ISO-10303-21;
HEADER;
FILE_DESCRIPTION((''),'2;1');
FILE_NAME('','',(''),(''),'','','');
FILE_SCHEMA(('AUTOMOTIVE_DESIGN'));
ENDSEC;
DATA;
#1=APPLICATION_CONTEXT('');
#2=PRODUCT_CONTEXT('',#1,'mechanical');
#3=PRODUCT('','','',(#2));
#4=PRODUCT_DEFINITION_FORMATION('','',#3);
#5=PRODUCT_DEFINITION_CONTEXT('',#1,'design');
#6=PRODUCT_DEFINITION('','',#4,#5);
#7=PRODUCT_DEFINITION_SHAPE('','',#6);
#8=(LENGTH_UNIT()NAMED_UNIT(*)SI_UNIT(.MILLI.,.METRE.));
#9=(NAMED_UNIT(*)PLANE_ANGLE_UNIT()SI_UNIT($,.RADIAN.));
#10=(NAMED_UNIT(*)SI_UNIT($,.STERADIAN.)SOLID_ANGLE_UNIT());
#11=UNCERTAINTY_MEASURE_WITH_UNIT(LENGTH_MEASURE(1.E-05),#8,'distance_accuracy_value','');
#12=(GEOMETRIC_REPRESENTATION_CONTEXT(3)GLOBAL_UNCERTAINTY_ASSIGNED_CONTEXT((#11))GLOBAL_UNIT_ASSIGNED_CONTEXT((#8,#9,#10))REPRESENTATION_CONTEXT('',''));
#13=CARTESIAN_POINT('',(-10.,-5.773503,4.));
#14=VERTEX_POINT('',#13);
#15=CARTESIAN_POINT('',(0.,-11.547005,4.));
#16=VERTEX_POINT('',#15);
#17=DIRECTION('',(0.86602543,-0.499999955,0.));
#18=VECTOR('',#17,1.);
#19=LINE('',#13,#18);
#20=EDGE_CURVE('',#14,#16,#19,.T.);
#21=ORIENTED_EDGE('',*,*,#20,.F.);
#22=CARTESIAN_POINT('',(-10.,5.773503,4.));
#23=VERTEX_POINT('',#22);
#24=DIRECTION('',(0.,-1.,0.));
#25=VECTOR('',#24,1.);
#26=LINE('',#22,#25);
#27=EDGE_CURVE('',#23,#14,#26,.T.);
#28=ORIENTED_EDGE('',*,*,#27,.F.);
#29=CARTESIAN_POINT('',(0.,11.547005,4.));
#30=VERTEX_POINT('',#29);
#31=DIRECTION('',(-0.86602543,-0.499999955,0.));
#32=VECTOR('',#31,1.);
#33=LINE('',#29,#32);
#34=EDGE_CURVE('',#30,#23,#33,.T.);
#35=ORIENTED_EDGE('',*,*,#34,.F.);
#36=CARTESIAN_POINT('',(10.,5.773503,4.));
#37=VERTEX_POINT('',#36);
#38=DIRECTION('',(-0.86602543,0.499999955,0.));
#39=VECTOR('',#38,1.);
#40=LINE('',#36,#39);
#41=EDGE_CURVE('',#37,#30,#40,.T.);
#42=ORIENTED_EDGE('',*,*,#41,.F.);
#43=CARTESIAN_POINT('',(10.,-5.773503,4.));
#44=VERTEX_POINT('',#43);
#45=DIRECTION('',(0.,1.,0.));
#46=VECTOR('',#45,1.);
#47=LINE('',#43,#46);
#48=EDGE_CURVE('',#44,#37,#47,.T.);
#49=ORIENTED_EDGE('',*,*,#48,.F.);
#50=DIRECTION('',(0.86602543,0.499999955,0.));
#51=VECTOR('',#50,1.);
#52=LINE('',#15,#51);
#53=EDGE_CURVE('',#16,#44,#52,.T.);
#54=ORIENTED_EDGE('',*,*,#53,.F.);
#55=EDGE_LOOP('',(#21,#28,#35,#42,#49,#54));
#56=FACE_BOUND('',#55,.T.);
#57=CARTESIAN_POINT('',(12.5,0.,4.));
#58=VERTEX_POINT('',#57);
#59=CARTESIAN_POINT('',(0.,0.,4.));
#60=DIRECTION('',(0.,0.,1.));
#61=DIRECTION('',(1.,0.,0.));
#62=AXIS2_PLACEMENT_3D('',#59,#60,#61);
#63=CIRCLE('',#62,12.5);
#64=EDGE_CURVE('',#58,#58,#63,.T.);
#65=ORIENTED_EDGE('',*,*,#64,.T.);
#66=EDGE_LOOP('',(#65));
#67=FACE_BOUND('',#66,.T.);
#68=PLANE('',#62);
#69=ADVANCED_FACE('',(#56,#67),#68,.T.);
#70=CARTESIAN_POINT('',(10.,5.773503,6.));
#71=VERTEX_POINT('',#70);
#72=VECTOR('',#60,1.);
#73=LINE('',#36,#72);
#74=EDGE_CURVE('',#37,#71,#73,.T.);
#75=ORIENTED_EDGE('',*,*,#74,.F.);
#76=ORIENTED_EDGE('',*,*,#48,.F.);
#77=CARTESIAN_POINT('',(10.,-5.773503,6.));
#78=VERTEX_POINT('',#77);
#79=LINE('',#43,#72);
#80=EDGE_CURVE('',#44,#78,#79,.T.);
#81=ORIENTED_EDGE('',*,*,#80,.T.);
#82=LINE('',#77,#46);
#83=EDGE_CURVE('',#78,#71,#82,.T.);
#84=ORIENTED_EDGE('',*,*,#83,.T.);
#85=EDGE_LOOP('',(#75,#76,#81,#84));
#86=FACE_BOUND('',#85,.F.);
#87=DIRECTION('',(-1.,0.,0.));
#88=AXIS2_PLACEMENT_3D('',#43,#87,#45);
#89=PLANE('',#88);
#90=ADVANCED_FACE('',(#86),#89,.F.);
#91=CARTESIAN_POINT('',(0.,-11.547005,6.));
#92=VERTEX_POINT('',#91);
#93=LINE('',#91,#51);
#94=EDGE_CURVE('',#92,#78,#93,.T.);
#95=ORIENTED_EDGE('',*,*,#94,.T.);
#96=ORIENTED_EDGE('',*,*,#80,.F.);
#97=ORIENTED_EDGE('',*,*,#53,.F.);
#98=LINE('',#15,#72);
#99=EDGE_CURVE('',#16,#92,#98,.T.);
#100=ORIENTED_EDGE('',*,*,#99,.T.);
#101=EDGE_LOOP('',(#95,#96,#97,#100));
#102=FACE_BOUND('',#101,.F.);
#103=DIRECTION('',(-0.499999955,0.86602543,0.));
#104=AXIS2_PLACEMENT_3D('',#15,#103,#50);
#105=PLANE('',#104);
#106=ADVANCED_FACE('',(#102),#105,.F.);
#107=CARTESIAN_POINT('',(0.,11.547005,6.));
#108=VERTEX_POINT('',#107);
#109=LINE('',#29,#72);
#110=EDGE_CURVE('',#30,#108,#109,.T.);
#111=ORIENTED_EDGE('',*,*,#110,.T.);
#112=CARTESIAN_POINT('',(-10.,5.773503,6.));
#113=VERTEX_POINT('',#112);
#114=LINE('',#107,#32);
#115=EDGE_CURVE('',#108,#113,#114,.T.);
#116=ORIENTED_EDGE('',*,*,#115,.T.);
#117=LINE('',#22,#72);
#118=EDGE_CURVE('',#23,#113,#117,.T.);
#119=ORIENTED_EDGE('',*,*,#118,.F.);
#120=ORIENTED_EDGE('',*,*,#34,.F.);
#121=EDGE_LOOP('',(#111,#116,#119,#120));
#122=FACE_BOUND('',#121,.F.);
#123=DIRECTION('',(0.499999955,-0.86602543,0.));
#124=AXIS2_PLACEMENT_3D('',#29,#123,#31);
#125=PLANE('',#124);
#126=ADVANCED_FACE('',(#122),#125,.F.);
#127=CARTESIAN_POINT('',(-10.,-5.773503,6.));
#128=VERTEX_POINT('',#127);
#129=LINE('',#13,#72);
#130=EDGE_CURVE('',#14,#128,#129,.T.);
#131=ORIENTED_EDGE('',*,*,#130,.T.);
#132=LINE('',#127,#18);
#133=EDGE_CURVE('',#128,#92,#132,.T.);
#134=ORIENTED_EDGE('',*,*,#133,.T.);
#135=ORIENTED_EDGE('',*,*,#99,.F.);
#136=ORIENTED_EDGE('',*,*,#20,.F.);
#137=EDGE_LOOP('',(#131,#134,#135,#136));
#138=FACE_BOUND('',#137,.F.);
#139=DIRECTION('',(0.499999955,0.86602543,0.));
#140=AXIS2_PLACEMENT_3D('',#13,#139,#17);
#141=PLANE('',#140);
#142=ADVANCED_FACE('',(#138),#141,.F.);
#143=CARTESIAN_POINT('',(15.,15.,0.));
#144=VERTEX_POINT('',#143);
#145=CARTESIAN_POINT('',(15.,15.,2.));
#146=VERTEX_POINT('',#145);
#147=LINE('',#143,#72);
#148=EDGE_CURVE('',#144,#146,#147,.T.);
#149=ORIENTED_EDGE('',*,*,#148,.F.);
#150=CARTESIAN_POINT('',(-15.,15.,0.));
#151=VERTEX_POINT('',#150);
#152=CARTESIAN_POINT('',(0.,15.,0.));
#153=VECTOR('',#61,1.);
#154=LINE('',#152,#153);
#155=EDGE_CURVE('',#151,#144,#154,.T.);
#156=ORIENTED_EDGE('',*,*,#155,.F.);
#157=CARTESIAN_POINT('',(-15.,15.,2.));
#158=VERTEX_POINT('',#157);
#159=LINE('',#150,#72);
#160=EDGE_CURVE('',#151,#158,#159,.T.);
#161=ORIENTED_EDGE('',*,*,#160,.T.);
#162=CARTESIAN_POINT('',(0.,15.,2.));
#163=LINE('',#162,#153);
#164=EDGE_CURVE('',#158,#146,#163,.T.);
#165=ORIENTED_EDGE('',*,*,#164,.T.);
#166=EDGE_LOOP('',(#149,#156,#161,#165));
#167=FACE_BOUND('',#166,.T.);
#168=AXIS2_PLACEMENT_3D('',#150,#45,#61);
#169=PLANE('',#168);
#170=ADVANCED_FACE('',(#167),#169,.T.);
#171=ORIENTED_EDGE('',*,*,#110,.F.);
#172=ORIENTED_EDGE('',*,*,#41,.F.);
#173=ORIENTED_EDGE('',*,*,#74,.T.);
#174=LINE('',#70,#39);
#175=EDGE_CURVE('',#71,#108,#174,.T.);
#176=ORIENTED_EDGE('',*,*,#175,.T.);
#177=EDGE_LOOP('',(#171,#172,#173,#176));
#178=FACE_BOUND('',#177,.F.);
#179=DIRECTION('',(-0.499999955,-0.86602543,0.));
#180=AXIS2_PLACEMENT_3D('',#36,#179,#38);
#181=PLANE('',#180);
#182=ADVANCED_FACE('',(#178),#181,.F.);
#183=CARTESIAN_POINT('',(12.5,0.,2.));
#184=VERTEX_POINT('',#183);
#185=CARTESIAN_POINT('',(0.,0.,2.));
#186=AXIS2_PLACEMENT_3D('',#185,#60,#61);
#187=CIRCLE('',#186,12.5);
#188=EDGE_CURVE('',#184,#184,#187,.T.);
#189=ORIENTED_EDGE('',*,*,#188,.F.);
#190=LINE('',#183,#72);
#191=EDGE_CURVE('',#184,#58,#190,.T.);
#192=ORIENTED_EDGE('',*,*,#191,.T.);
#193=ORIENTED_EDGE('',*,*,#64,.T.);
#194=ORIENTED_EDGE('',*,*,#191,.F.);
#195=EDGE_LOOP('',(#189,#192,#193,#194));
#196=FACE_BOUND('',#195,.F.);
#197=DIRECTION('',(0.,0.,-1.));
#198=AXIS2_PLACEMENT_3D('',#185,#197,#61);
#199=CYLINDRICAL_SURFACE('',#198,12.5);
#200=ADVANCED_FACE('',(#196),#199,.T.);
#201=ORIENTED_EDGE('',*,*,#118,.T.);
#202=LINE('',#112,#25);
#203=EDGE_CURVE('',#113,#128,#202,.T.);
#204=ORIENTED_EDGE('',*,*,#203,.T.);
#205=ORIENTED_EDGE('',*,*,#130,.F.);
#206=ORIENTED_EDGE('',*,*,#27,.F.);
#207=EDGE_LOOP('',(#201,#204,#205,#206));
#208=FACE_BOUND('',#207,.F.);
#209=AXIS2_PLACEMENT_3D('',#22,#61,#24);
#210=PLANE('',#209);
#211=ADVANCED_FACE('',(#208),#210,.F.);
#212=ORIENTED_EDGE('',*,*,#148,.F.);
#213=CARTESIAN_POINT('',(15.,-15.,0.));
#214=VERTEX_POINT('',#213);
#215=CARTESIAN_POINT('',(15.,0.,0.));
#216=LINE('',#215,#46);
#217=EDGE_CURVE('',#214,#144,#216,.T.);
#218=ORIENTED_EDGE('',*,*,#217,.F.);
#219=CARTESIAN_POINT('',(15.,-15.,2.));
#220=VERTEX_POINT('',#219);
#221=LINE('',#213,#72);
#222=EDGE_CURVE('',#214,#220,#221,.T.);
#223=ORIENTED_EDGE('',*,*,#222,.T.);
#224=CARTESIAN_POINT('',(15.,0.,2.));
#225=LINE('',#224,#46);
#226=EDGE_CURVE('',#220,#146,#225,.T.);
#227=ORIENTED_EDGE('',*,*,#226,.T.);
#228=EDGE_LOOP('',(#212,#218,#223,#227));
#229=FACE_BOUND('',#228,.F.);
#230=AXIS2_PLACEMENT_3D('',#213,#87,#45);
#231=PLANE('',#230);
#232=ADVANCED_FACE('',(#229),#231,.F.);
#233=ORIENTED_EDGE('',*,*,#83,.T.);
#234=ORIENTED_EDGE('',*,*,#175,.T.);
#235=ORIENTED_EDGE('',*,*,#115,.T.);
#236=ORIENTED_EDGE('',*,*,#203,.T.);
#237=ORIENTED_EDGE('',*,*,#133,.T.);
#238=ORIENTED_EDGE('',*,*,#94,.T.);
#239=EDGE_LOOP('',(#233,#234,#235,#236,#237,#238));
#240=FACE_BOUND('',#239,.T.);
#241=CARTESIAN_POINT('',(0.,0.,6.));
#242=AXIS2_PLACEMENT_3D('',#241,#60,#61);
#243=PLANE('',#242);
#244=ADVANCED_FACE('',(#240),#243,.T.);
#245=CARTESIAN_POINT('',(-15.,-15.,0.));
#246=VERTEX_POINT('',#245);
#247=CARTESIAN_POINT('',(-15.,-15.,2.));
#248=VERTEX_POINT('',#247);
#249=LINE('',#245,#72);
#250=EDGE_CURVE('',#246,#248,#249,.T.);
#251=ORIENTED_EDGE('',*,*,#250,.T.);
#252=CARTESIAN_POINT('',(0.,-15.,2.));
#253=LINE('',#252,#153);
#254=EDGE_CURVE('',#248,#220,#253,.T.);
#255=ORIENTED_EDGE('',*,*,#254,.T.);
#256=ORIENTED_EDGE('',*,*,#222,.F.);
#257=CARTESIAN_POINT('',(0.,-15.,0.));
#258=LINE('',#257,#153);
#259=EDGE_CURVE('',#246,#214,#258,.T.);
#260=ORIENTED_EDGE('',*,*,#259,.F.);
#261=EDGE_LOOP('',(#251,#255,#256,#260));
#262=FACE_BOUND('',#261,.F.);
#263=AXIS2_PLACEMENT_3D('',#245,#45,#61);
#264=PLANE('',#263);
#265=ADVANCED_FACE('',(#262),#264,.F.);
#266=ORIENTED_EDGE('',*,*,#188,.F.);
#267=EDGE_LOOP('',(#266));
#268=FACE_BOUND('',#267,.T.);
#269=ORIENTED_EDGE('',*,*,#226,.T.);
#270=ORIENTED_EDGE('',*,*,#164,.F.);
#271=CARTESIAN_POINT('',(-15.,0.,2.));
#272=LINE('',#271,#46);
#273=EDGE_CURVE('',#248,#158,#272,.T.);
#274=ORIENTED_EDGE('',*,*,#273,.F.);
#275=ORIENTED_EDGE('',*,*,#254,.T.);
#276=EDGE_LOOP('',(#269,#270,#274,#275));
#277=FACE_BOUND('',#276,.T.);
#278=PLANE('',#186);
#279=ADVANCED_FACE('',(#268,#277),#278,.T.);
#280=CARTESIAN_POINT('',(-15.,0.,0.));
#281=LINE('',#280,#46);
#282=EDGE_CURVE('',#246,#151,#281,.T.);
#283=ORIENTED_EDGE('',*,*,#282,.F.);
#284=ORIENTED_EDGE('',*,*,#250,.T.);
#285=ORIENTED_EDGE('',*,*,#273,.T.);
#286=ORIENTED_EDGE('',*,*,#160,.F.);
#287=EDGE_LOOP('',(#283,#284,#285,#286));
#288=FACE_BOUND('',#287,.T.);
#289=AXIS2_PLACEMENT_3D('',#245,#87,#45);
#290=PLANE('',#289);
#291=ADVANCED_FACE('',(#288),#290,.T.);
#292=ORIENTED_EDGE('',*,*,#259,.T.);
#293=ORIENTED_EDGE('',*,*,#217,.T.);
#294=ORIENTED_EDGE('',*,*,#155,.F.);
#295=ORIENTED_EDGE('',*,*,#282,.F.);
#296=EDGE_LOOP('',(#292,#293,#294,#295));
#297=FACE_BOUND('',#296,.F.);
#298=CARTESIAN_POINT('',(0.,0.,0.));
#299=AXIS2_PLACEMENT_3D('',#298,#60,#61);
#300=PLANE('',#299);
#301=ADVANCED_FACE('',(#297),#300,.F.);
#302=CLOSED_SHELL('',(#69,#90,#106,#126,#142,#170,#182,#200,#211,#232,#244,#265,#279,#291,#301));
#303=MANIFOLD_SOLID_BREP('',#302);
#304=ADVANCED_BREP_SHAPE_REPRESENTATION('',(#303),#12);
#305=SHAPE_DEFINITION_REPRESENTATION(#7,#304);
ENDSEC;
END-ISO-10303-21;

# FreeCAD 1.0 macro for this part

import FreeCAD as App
import Part
import Sketcher

V = App.Vector
Q = App.Units.Quantity

doc = App.newDocument("Part")
body = doc.addObject("PartDesign::Body", "Body")

sketch1 = body.newObject("Sketcher::SketchObject", "Sketch")
sketch1.AttachmentSupport = (doc.getObject("XY_Plane"), [""])
sketch1.MapMode = "FlatFace"
sketch1.addGeometry([
    Part.LineSegment(V(-15, 15, 0), V(-15, -15, 0)),
    Part.LineSegment(V(-15, -15, 0), V(15, -15, 0)),
    Part.LineSegment(V(15, -15, 0), V(15, 15, 0)),
    Part.LineSegment(V(15, 15, 0), V(-15, 15, 0)),
], False)
sketch1.addConstraint([
    Sketcher.Constraint("Coincident", 0, 2, 1, 1),
    Sketcher.Constraint("Coincident", 1, 2, 2, 1),
    Sketcher.Constraint("Coincident", 2, 2, 3, 1),
    Sketcher.Constraint("Coincident", 3, 2, 0, 1),
    Sketcher.Constraint("Vertical", 0),
    Sketcher.Constraint("Horizontal", 1),
    Sketcher.Constraint("Vertical", 2),
    Sketcher.Constraint("Horizontal", 3),
    Sketcher.Constraint("Symmetric", 0, 2, 2, 2, -1, 1),
    Sketcher.Constraint("Equal", 3, 0),
    Sketcher.Constraint("DistanceX", 1, 1, 1, 2, 30.0),
])
pad1 = body.newObject("PartDesign::Pad", "Pad")
pad1.Profile = sketch1
pad1.Length = 2

sketch2 = body.newObject("Sketcher::SketchObject", "Sketch001")
sketch2.AttachmentSupport = (doc.getObject("XY_Plane"), [""])
sketch2.MapMode = "FlatFace"
sketch2.AttachmentOffset = App.Placement(V(0, 0, 2), App.Rotation())
sketch2.addGeometry(Part.Circle(V(0, 0, 0), V(0, 0, 1), 12), False)
sketch2.addConstraint([
    Sketcher.Constraint("Coincident", 0, 3, -1, 1),
    Sketcher.Constraint("Diameter", 0, 25.0),
])
pad2 = body.newObject("PartDesign::Pad", "Pad001")
pad2.Profile = sketch2
pad2.Length = 2

sketch3 = body.newObject("Sketcher::SketchObject", "Sketch002")
sketch3.AttachmentSupport = (doc.getObject("XY_Plane"), [""])
sketch3.MapMode = "FlatFace"
sketch3.AttachmentOffset = App.Placement(V(0, 0, 4), App.Rotation())
sketch3.addGeometry([
    Part.LineSegment(V(0, 12, 0), V(-10, 6, 0)),
    Part.LineSegment(V(-10, 6, 0), V(-10, -6, 0)),
    Part.LineSegment(V(-10, -6, 0), V(0, -12, 0)),
    Part.LineSegment(V(0, -12, 0), V(10, -6, 0)),
    Part.LineSegment(V(10, -6, 0), V(10, 6, 0)),
    Part.LineSegment(V(10, 6, 0), V(0, 12, 0)),
], False)
sketch3.addConstraint([
    Sketcher.Constraint("Coincident", 0, 2, 1, 1),
    Sketcher.Constraint("Coincident", 1, 2, 2, 1),
    Sketcher.Constraint("Coincident", 2, 2, 3, 1),
    Sketcher.Constraint("Coincident", 3, 2, 4, 1),
    Sketcher.Constraint("Coincident", 4, 2, 5, 1),
    Sketcher.Constraint("Coincident", 5, 2, 0, 1),
    Sketcher.Constraint("Vertical", 1),
    Sketcher.Constraint("Vertical", 4),
    Sketcher.Constraint("Symmetric", 0, 2, 3, 2, -1, 1),
    Sketcher.Constraint("Symmetric", 2, 2, 5, 2, -1, 1),
    Sketcher.Constraint("PointOnObject", 2, 2, -2),
    Sketcher.Constraint("Parallel", 2, 5),
    Sketcher.Constraint("Horizontal", 1, 2, 3, 2),
    Sketcher.Constraint("Angle", 0, Q("-150.000003 deg")),
    Sketcher.Constraint("DistanceX", 0, 2, -1, 1, 10.0),
    Sketcher.Constraint("DistanceY", 1, 2, 1, 1, 11.547006),
])
pad3 = body.newObject("PartDesign::Pad", "Pad002")
pad3.Profile = sketch3
pad3.Length = 2

doc.recompute()
